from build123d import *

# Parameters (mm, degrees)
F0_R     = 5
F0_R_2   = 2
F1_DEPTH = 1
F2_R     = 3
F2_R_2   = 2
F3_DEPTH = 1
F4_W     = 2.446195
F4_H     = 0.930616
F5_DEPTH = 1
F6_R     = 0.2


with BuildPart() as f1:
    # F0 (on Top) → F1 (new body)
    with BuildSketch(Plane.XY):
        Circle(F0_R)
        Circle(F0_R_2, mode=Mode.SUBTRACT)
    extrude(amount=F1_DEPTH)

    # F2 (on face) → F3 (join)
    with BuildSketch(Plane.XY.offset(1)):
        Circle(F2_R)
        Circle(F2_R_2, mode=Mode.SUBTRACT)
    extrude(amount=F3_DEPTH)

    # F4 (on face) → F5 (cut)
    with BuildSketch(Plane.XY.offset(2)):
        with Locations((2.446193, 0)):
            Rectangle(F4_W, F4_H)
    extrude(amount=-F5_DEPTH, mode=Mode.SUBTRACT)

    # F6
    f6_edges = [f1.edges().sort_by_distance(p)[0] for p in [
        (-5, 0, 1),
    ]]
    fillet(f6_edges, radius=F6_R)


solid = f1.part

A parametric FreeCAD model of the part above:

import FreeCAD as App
import Part
import Sketcher


def edges_at(feature, points):
    """Names of the edges that pass closest to the given points."""
    edges = feature.Shape.Edges
    near = lambda p: min(range(len(edges)), key=lambda i: edges[i].distToShape(Part.Vertex(*p))[0])
    return sorted({f"Edge{near(p) + 1}" for p in points})

doc = App.newDocument("Part")
body = doc.addObject("PartDesign::Body", "Body")

# Sketch on XY plane
sketch1 = body.newObject("Sketcher::SketchObject", "Sketch")
sketch1.AttachmentSupport = (doc.getObject("XY_Plane"), [""])
sketch1.MapMode = "FlatFace"
sketch1.addGeometry([
    Part.Circle(App.Vector(0, 0, 0), App.Vector(0, 0, 1), 5),
    Part.Circle(App.Vector(0, 0, 0), App.Vector(0, 0, 1), 2),
], False)
sketch1.addConstraint([
    Sketcher.Constraint("Coincident", 0, 3, -1, 1),
    Sketcher.Constraint("Coincident", 1, 3, -1, 1),
    Sketcher.Constraint("Diameter", 0, 10.0),
    Sketcher.Constraint("Diameter", 1, 4.0),
])
pad1 = body.newObject("PartDesign::Pad", "Pad")
pad1.Profile = sketch1
pad1.Length = 1

# Sketch on XY plane
sketch2 = body.newObject("Sketcher::SketchObject", "Sketch001")
sketch2.AttachmentSupport = (doc.getObject("XY_Plane"), [""])
sketch2.MapMode = "FlatFace"
sketch2.AttachmentOffset = App.Placement(App.Vector(0, 0, 1), App.Rotation())
sketch2.addGeometry([
    Part.Circle(App.Vector(0, 0, 0), App.Vector(0, 0, 1), 3),
    Part.Circle(App.Vector(0, 0, 0), App.Vector(0, 0, 1), 2),
], False)
sketch2.addConstraint([
    Sketcher.Constraint("Coincident", 0, 3, -1, 1),
    Sketcher.Constraint("Coincident", 1, 3, -1, 1),
    Sketcher.Constraint("Diameter", 0, 6.0),
    Sketcher.Constraint("Diameter", 1, 4.0),
])
pad2 = body.newObject("PartDesign::Pad", "Pad001")
pad2.Profile = sketch2
pad2.Length = 1

# Sketch on XY plane
sketch3 = body.newObject("Sketcher::SketchObject", "Sketch002")
sketch3.AttachmentSupport = (doc.getObject("XY_Plane"), [""])
sketch3.MapMode = "FlatFace"
sketch3.AttachmentOffset = App.Placement(App.Vector(0, 0, 2), App.Rotation())
sketch3.addGeometry([
    Part.LineSegment(App.Vector(1.2, 0.5, 0), App.Vector(1.2, -0.5, 0)),
    Part.LineSegment(App.Vector(1.2, -0.5, 0), App.Vector(3.7, -0.5, 0)),
    Part.LineSegment(App.Vector(3.7, -0.5, 0), App.Vector(3.7, 0.5, 0)),
    Part.LineSegment(App.Vector(3.7, 0.5, 0), App.Vector(1.2, 0.5, 0)),
], False)
sketch3.addConstraint([
    Sketcher.Constraint("Coincident", 0, 2, 1, 1),
    Sketcher.Constraint("Coincident", 1, 2, 2, 1),
    Sketcher.Constraint("Coincident", 2, 2, 3, 1),
    Sketcher.Constraint("Coincident", 3, 2, 0, 1),
    Sketcher.Constraint("Vertical", 0),
    Sketcher.Constraint("Horizontal", 1),
    Sketcher.Constraint("Vertical", 2),
    Sketcher.Constraint("Horizontal", 3),
    Sketcher.Constraint("DistanceX", 1, 1, 1, 2, 2.446195),
    Sketcher.Constraint("DistanceY", 0, 2, 0, 1, 0.930616),
    Sketcher.Constraint("DistanceX", -1, 1, 1, 2, 3.66929),
    Sketcher.Constraint("DistanceY", 0, 2, -1, 1, 0.465308),
])
pocket1 = body.newObject("PartDesign::Pocket", "Pocket")
pocket1.Profile = sketch3
pocket1.Length = 1
doc.recompute()

fillet = body.newObject("PartDesign::Fillet", "Fillet")
fillet.Base = (pocket1, edges_at(pocket1, [(-5, 0, 1)]))
fillet.Radius = 0.2

doc.recompute()
